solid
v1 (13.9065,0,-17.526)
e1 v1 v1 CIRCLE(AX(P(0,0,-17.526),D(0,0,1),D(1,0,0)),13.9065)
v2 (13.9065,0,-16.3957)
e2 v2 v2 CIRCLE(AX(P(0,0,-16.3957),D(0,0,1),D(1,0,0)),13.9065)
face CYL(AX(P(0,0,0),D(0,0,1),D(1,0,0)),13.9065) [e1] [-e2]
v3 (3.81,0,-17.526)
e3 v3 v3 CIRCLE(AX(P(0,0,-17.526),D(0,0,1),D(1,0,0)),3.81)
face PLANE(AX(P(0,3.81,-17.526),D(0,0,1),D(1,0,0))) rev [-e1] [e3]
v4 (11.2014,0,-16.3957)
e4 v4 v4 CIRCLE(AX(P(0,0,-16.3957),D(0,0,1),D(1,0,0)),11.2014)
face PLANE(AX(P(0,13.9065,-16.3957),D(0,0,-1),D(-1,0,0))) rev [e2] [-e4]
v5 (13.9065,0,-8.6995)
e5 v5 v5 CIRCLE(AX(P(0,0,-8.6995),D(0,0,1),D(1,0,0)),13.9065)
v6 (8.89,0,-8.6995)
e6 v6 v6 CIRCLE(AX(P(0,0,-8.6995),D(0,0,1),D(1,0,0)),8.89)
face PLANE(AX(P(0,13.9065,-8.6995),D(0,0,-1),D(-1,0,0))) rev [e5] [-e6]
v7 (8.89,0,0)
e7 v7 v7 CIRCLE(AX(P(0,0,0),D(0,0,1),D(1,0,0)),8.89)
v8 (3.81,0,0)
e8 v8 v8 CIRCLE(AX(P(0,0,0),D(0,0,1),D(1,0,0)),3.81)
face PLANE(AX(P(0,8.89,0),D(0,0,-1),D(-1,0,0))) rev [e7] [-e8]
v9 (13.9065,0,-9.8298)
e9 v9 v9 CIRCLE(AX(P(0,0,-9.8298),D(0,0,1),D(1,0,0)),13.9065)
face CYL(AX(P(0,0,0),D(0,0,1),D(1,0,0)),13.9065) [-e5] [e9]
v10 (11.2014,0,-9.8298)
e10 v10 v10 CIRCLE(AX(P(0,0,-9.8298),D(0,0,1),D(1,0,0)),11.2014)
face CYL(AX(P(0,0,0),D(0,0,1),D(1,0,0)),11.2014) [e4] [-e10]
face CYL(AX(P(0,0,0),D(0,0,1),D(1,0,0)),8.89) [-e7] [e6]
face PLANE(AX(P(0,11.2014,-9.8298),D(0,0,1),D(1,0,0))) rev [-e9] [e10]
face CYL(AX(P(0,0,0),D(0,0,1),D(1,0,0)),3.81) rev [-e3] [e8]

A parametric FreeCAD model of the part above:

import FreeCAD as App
import Part
import Sketcher
Q = App.Units.Quantity

doc = App.newDocument("Part")
body = doc.addObject("PartDesign::Body", "Body")

# Sketch on YZ plane
sketch1 = body.newObject("Sketcher::SketchObject", "Sketch")
sketch1.AttachmentSupport = (doc.getObject("YZ_Plane"), [""])
sketch1.MapMode = "FlatFace"
sketch1.addGeometry([
    Part.LineSegment(App.Vector(3.8, 0, 0), App.Vector(3.8, -17.5, 0)),  # 0
    Part.LineSegment(App.Vector(3.8, -17.5, 0), App.Vector(13.9, -17.5, 0)),  # 1
    Part.LineSegment(App.Vector(13.9, -17.5, 0), App.Vector(13.9, -16.4, 0)),  # 2
    Part.LineSegment(App.Vector(13.9, -16.4, 0), App.Vector(11.2, -16.4, 0)),  # 3
    Part.LineSegment(App.Vector(11.2, -16.4, 0), App.Vector(11.2, -9.8, 0)),  # 4
    Part.LineSegment(App.Vector(11.2, -9.8, 0), App.Vector(13.9, -9.8, 0)),  # 5
    Part.LineSegment(App.Vector(13.9, -9.8, 0), App.Vector(13.9, -8.7, 0)),  # 6
    Part.LineSegment(App.Vector(13.9, -8.7, 0), App.Vector(8.9, -8.7, 0)),  # 7
    Part.LineSegment(App.Vector(8.9, -8.7, 0), App.Vector(8.9, 0, 0)),  # 8
    Part.LineSegment(App.Vector(8.9, 0, 0), App.Vector(3.8, 0, 0)),  # 9
], False)
sketch1.addConstraint([
    Sketcher.Constraint("Coincident", 0, 2, 1, 1),
    Sketcher.Constraint("Coincident", 1, 2, 2, 1),
    Sketcher.Constraint("Coincident", 2, 2, 3, 1),
    Sketcher.Constraint("Coincident", 3, 2, 4, 1),
    Sketcher.Constraint("Coincident", 4, 2, 5, 1),
    Sketcher.Constraint("Coincident", 5, 2, 6, 1),
    Sketcher.Constraint("Coincident", 6, 2, 7, 1),
    Sketcher.Constraint("Coincident", 7, 2, 8, 1),
    Sketcher.Constraint("Coincident", 8, 2, 9, 1),
    Sketcher.Constraint("Coincident", 9, 2, 0, 1),
    Sketcher.Constraint("Vertical", 0),
    Sketcher.Constraint("Horizontal", 1),
    Sketcher.Constraint("Vertical", 2),
    Sketcher.Constraint("Horizontal", 3),
    Sketcher.Constraint("Vertical", 4),
    Sketcher.Constraint("Horizontal", 5),
    Sketcher.Constraint("Vertical", 6),
    Sketcher.Constraint("Horizontal", 7),
    Sketcher.Constraint("Vertical", 8),
    Sketcher.Constraint("Horizontal", 9),
    Sketcher.Constraint("PointOnObject", 8, 2, -1),
    Sketcher.Constraint("Vertical", 2, 2, 5, 2),
    Sketcher.Constraint("Equal", 2, 6),
    Sketcher.Constraint("DistanceX", 9, 2, 9, 1, Q("0.2 in")),
    Sketcher.Constraint("DistanceY", 0, 2, 0, 1, Q("0.69 in")),
    Sketcher.Constraint("DistanceX", -1, 1, 0, 2, Q("0.15 in")),
    Sketcher.Constraint("DistanceX", 1, 1, 1, 2, Q("0.3975 in")),
    Sketcher.Constraint("DistanceX", 3, 2, 3, 1, Q("0.1065 in")),
    Sketcher.Constraint("DistanceY", 2, 1, 2, 2, Q("0.0445 in")),
    Sketcher.Constraint("DistanceY", 4, 1, 4, 2, Q("0.2585 in")),
])
revolution = body.newObject("PartDesign::Revolution", "Revolution")
revolution.Profile = sketch1
revolution.ReferenceAxis = (sketch1, ["V_Axis"])
revolution.Angle = 360

doc.recompute()
